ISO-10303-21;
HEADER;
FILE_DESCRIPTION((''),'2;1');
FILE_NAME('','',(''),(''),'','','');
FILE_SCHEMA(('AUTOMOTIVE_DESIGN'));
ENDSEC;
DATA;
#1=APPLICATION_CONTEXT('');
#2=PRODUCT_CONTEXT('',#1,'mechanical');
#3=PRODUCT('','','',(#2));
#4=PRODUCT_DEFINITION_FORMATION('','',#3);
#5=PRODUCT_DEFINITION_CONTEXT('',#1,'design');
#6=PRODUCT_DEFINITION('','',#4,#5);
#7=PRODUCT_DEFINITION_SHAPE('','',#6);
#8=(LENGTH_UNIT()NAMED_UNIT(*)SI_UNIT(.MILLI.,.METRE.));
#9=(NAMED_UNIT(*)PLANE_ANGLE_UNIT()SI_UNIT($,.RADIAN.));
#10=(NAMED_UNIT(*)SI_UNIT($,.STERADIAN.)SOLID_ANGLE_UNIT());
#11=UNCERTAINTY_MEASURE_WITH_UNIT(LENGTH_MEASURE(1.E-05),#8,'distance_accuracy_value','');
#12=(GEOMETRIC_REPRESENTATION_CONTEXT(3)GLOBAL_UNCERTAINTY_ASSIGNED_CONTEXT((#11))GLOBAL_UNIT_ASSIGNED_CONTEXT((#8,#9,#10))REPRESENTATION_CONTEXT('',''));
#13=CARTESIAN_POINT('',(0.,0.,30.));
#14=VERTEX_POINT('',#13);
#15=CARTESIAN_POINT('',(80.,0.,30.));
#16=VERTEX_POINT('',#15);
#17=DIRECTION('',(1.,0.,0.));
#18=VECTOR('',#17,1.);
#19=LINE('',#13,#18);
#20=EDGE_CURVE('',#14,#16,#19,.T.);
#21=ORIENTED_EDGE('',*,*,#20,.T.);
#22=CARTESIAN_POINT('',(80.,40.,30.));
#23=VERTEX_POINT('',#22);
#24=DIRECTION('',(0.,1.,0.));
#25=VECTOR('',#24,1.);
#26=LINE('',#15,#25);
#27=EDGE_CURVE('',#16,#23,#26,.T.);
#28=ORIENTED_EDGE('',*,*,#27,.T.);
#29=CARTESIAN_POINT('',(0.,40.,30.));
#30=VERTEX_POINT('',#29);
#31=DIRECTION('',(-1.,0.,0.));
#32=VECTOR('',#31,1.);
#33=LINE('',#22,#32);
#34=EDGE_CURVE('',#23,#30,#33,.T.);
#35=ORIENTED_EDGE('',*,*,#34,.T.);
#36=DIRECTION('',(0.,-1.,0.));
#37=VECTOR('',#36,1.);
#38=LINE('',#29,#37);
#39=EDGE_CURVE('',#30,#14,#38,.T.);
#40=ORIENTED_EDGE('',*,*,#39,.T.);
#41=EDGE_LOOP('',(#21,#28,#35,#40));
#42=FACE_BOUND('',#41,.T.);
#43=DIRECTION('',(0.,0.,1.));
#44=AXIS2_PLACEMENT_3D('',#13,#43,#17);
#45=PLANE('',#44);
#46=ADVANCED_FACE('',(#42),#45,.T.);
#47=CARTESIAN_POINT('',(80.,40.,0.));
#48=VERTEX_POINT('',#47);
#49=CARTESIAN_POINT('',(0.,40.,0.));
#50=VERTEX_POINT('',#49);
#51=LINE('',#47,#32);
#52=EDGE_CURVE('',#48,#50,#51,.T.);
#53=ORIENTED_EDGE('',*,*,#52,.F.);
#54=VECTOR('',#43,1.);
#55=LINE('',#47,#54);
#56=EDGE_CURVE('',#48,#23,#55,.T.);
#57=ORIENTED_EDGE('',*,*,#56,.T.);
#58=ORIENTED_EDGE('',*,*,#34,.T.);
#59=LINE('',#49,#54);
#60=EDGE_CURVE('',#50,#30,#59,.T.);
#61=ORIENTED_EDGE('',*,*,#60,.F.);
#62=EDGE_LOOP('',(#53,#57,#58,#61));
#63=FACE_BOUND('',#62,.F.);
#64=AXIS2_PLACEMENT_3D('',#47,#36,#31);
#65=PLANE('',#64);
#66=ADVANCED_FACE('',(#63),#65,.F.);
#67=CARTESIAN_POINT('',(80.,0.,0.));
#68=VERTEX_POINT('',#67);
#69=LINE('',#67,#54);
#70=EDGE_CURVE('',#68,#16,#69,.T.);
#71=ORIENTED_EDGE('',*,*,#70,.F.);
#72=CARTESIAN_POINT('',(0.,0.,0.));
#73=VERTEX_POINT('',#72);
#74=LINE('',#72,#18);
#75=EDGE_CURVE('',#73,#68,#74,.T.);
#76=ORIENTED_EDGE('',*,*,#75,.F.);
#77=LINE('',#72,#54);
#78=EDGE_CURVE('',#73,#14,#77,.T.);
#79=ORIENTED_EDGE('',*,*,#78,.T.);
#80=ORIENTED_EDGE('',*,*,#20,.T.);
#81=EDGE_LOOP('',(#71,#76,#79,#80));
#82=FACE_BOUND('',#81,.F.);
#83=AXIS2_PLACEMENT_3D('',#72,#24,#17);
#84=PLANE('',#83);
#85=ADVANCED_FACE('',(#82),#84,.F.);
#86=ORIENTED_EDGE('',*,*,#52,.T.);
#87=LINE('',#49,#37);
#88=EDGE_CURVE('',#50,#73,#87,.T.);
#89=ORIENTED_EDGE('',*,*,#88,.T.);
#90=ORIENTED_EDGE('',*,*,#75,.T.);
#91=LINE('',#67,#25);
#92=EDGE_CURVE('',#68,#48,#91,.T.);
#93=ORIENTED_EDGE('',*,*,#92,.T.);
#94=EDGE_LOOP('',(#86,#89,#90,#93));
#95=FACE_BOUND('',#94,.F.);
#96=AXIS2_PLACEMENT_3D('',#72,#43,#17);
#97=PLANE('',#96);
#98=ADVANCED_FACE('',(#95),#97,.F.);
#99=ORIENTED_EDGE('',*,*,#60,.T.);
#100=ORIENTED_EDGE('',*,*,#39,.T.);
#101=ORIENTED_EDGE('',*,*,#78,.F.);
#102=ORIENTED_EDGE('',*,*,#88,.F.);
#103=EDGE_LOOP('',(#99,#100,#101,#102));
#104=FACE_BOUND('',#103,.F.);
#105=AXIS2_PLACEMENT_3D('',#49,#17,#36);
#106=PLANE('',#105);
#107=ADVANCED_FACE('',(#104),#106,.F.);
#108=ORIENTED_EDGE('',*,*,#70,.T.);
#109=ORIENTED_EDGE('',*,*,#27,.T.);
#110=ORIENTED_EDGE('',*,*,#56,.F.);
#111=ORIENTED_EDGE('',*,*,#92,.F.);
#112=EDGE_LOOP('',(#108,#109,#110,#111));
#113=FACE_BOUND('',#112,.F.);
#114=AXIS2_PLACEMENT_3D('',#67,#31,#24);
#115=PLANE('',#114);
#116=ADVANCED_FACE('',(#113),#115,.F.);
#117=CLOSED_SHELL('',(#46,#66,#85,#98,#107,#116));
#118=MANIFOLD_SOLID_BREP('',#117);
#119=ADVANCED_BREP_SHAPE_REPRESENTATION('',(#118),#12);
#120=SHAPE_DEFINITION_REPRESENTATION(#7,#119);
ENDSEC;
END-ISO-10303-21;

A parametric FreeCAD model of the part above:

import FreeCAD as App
import Part
import Sketcher

V = App.Vector
Q = App.Units.Quantity

doc = App.newDocument("Part")
params = doc.addObject("Spreadsheet::Sheet", "Params")
for row, (alias, value) in enumerate([
    ("sketch1_width", "80 mm"),
    ("sketch1_height", "40 mm"),
    ("pad1_length", "30 mm"),
], start=1):
    params.set(f"A{row}", alias)
    params.set(f"B{row}", "=" + value)
    params.setAlias(f"B{row}", alias)

body = doc.addObject("PartDesign::Body", "Body")

# Sketch on XY plane
sketch1 = doc.addObject("Sketcher::SketchObject", "Sketch")
body.addObject(sketch1)
sketch1.AttachmentSupport = (doc.XY_Plane, [""])
sketch1.MapMode = "FlatFace"
sketch1.addGeometry(Part.LineSegment(V(0, 40, 0), V(0, 0, 0)), False)
sketch1.addGeometry(Part.LineSegment(V(0, 0, 0), V(80, 0, 0)), False)
sketch1.addGeometry(Part.LineSegment(V(80, 0, 0), V(80, 40, 0)), False)
sketch1.addGeometry(Part.LineSegment(V(80, 40, 0), V(0, 40, 0)), False)
sketch1.addConstraint(Sketcher.Constraint("Coincident", 0, 2, 1, 1))
sketch1.addConstraint(Sketcher.Constraint("Coincident", 1, 2, 2, 1))
sketch1.addConstraint(Sketcher.Constraint("Coincident", 2, 2, 3, 1))
sketch1.addConstraint(Sketcher.Constraint("Coincident", 3, 2, 0, 1))
sketch1.addConstraint(Sketcher.Constraint("Vertical", 0))
sketch1.addConstraint(Sketcher.Constraint("Horizontal", 1))
sketch1.addConstraint(Sketcher.Constraint("Vertical", 2))
sketch1.addConstraint(Sketcher.Constraint("Horizontal", 3))
sketch1.addConstraint(Sketcher.Constraint("Coincident", 0, 2, -1, 1))
sketch1.addConstraint(Sketcher.Constraint("DistanceX", 1, 1, 1, 2, Q("80 mm")))
sketch1.addConstraint(Sketcher.Constraint("DistanceY", 0, 2, 0, 1, Q("40 mm")))
sketch1.setExpression("Constraints[9]", "Params.sketch1_width")
sketch1.setExpression("Constraints[10]", "Params.sketch1_height")
pad1 = doc.addObject("PartDesign::Pad", "Pad")
body.addObject(pad1)
pad1.Profile = sketch1
pad1.setExpression("Length", "Params.pad1_length")

doc.recompute()
